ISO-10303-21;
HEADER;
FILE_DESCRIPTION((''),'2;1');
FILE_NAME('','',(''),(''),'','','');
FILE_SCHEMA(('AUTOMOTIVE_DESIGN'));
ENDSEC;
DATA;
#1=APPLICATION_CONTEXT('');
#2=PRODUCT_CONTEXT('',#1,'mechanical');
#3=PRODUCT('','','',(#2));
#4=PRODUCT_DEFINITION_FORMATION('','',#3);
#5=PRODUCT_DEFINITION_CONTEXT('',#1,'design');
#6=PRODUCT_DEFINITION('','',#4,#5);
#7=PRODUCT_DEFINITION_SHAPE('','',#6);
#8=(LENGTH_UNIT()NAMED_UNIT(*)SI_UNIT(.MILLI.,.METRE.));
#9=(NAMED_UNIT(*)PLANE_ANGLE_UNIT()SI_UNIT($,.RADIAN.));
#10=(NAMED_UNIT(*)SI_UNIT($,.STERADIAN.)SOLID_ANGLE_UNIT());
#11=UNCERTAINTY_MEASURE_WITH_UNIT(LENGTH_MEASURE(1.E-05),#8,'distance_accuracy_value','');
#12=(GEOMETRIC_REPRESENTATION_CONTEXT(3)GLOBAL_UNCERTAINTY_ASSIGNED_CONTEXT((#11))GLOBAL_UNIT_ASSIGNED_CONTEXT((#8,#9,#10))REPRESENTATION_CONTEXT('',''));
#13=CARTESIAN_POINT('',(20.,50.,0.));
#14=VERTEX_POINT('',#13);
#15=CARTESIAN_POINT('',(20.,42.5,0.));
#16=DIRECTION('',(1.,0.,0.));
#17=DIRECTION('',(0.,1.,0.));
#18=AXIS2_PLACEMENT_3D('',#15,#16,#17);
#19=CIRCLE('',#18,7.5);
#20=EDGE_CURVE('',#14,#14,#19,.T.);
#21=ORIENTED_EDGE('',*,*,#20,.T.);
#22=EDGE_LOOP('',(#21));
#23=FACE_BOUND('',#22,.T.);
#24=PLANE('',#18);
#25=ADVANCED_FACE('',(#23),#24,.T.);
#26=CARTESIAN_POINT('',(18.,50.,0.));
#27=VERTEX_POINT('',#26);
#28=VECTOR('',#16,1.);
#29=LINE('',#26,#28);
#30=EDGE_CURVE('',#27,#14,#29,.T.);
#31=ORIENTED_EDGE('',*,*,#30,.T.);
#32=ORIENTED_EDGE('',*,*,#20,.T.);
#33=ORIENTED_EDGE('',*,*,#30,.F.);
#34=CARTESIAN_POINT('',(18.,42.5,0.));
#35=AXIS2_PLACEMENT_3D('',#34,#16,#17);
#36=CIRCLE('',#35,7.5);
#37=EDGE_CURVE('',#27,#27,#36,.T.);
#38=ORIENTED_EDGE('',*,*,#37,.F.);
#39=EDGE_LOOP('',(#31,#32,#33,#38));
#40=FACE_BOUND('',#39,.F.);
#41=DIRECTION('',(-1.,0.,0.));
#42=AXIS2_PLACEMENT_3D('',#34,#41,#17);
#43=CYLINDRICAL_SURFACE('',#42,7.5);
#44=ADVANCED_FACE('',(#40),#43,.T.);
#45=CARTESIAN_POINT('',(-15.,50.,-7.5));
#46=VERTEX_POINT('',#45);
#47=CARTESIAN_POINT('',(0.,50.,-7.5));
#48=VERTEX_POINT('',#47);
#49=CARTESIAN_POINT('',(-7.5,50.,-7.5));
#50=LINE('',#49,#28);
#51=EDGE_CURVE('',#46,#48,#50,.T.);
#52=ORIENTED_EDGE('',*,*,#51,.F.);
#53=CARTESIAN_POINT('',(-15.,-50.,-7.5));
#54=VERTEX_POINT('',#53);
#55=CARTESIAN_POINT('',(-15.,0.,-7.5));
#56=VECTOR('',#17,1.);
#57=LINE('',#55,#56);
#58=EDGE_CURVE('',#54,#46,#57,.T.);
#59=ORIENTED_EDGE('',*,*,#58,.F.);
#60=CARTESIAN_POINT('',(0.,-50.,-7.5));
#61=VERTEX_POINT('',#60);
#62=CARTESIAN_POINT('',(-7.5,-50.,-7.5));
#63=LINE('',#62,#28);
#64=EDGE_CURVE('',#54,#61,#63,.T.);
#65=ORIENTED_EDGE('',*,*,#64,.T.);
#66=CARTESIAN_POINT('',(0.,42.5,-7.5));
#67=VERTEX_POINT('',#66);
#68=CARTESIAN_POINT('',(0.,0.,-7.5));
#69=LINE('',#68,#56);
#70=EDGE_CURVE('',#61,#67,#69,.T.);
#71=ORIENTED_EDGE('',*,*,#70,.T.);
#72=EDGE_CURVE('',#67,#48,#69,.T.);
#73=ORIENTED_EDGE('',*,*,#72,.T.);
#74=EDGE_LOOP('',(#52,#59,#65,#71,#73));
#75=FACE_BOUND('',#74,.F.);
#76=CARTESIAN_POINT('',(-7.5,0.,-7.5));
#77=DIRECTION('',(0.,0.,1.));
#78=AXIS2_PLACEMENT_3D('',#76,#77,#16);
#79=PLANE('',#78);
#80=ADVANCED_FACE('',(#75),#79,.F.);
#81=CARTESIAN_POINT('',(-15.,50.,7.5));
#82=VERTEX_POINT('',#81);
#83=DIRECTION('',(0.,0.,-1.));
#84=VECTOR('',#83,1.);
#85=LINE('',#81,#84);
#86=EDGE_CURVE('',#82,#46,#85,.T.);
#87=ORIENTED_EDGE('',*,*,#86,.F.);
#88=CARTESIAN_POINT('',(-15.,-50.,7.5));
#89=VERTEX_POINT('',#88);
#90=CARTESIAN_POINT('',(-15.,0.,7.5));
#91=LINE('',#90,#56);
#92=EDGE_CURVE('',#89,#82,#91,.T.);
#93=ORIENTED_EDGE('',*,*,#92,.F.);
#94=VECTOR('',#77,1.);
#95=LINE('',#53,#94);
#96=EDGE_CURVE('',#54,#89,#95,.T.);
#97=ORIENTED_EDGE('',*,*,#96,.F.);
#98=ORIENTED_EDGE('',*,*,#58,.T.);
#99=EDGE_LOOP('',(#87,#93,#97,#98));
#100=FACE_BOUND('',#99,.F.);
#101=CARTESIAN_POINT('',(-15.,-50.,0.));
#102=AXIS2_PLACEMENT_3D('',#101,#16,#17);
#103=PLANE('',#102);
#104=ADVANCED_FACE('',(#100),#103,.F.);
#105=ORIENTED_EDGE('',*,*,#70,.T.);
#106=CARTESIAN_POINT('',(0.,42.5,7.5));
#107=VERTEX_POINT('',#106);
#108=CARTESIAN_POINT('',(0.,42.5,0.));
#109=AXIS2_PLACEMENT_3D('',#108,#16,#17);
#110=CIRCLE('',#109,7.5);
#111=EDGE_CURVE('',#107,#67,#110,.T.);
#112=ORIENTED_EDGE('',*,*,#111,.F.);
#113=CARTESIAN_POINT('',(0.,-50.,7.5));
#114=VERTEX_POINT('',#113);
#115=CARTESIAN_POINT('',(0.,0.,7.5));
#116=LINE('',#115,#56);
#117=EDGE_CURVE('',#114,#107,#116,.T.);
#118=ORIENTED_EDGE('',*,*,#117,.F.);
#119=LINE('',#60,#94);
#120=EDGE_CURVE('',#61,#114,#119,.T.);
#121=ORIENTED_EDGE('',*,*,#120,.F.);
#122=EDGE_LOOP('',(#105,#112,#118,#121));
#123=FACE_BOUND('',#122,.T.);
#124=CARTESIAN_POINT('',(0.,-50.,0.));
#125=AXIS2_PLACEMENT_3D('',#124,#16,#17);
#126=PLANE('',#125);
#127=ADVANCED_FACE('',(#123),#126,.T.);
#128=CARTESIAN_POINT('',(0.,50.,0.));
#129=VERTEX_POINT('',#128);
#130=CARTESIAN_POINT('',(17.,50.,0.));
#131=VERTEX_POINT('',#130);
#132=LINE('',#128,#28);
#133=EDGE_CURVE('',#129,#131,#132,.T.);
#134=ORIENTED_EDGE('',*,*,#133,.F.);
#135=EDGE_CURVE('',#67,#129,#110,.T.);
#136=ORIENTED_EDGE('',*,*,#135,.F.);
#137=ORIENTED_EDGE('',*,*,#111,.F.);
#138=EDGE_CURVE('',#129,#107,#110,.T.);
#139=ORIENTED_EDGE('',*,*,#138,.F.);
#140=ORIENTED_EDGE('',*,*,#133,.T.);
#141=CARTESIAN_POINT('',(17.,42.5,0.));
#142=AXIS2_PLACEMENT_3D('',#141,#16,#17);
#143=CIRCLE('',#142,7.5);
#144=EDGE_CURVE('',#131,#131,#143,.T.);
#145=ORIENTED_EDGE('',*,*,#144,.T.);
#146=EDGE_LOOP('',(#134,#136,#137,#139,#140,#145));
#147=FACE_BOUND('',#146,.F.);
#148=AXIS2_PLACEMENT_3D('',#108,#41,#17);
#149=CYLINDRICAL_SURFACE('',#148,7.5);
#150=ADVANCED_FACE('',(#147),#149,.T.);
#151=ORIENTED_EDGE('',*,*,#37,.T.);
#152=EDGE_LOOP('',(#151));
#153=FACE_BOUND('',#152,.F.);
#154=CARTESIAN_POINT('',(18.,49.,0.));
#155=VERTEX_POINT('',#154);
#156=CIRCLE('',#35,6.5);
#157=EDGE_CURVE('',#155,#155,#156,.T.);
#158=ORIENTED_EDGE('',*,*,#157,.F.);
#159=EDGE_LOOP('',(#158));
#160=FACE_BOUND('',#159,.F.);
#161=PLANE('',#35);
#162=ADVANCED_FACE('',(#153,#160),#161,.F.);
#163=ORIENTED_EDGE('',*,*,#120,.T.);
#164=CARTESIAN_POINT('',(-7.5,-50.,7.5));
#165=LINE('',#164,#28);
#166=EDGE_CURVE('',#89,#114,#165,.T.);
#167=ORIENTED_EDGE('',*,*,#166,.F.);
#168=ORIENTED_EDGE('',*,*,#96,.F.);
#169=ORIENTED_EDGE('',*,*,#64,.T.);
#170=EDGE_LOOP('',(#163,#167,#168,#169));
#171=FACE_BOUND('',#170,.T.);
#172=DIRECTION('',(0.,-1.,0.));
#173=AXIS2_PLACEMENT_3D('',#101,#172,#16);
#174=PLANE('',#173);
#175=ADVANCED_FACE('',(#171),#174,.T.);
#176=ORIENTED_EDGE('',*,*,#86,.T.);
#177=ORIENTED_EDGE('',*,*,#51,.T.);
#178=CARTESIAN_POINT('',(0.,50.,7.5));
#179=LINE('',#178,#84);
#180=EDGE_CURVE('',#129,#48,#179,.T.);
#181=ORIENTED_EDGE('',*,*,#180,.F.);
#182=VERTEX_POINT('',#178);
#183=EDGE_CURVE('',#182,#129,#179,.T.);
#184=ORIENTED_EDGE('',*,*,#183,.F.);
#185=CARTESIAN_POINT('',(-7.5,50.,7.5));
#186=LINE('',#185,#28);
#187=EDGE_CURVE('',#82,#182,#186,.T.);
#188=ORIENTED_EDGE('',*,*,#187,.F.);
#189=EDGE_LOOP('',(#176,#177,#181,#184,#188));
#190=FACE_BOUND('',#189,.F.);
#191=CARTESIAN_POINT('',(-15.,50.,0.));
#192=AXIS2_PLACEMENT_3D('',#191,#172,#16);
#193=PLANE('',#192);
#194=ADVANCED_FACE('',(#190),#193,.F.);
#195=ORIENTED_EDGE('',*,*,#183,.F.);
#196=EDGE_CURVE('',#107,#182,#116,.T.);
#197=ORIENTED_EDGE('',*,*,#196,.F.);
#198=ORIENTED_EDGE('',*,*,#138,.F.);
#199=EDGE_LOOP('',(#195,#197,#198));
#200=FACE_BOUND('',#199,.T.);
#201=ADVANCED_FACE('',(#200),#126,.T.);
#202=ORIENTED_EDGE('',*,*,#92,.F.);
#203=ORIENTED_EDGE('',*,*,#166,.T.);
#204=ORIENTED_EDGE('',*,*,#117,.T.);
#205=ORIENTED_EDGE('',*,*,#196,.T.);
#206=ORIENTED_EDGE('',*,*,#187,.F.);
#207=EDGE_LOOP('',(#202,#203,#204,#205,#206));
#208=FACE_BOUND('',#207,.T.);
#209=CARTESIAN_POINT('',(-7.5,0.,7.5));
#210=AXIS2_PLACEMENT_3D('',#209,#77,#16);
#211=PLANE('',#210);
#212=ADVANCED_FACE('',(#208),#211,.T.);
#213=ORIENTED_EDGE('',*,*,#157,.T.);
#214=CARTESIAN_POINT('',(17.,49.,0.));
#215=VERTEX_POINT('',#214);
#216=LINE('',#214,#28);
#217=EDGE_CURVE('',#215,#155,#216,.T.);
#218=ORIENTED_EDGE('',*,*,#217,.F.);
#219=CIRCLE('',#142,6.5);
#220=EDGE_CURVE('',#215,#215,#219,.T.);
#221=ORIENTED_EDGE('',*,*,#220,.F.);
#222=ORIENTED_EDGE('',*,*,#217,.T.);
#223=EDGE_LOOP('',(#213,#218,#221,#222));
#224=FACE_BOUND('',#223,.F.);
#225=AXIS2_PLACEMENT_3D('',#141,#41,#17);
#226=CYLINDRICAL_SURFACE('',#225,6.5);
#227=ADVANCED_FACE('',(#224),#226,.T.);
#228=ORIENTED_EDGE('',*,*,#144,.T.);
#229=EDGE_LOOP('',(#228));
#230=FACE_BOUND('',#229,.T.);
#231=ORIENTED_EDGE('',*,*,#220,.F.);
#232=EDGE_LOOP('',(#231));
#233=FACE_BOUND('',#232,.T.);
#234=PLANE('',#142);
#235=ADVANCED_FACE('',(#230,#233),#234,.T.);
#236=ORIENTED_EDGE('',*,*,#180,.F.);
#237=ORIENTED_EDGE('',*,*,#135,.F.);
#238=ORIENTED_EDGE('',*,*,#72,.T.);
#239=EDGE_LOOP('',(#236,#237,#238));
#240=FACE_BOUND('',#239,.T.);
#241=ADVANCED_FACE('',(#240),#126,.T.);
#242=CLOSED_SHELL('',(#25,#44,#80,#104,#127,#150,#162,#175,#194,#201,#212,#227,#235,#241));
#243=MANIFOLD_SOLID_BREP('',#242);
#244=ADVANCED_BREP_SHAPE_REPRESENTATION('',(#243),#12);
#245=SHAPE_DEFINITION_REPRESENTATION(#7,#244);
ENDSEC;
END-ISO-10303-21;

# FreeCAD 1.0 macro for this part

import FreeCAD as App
import Part
import Sketcher

doc = App.newDocument("Part")
body = doc.addObject("PartDesign::Body", "Body")

sketch1 = doc.addObject("Sketcher::SketchObject", "Sketch")
body.addObject(sketch1)
sketch1.AttachmentSupport = (doc.XY_Plane, [""])
sketch1.MapMode = "FlatFace"
sketch1.addGeometry(Part.LineSegment(App.Vector(-15, 50, 0), App.Vector(-15, -50, 0)), False)
sketch1.addGeometry(Part.LineSegment(App.Vector(-15, -50, 0), App.Vector(0, -50, 0)), False)
sketch1.addGeometry(Part.LineSegment(App.Vector(0, -50, 0), App.Vector(0, 50, 0)), False)
sketch1.addGeometry(Part.LineSegment(App.Vector(0, 50, 0), App.Vector(-15, 50, 0)), False)
sketch1.addConstraint(Sketcher.Constraint("Coincident", 0, 2, 1, 1))
sketch1.addConstraint(Sketcher.Constraint("Coincident", 1, 2, 2, 1))
sketch1.addConstraint(Sketcher.Constraint("Coincident", 2, 2, 3, 1))
sketch1.addConstraint(Sketcher.Constraint("Coincident", 3, 2, 0, 1))
sketch1.addConstraint(Sketcher.Constraint("Vertical", 0))
sketch1.addConstraint(Sketcher.Constraint("Horizontal", 1))
sketch1.addConstraint(Sketcher.Constraint("Vertical", 2))
sketch1.addConstraint(Sketcher.Constraint("Horizontal", 3))
sketch1.addConstraint(Sketcher.Constraint("Symmetric", 1, 2, 2, 2, -1, 1))
sketch1.addConstraint(Sketcher.Constraint("DistanceX", 1, 1, 1, 2, 15.0))
sketch1.addConstraint(Sketcher.Constraint("DistanceY", 0, 2, 0, 1, 100.0))
pad1 = doc.addObject("PartDesign::Pad", "Pad")
body.addObject(pad1)
pad1.Profile = sketch1
pad1.Length = 15
pad1.Midplane = True

sketch2 = doc.addObject("Sketcher::SketchObject", "Sketch001")
body.addObject(sketch2)
sketch2.AttachmentSupport = (doc.YZ_Plane, [""])
sketch2.MapMode = "FlatFace"
sketch2.addGeometry(Part.Circle(App.Vector(42.5, 0, 0), App.Vector(0, 0, 1), 7.5), False)
sketch2.addConstraint(Sketcher.Constraint("PointOnObject", 0, 3, -1))
sketch2.addConstraint(Sketcher.Constraint("Diameter", 0, 15.0))
sketch2.addConstraint(Sketcher.Constraint("DistanceX", -1, 1, 0, 3, 42.5))
pad2 = doc.addObject("PartDesign::Pad", "Pad001")
body.addObject(pad2)
pad2.Profile = sketch2
pad2.Length = 17

sketch3 = doc.addObject("Sketcher::SketchObject", "Sketch002")
body.addObject(sketch3)
sketch3.AttachmentSupport = (doc.YZ_Plane, [""])
sketch3.MapMode = "FlatFace"
sketch3.AttachmentOffset = App.Placement(App.Vector(0, 0, 17), App.Rotation())
sketch3.addGeometry(Part.Circle(App.Vector(42.5, 0, 0), App.Vector(0, 0, 1), 6.5), False)
sketch3.addConstraint(Sketcher.Constraint("PointOnObject", 0, 3, -1))
sketch3.addConstraint(Sketcher.Constraint("Diameter", 0, 13.0))
sketch3.addConstraint(Sketcher.Constraint("DistanceX", -1, 1, 0, 3, 42.5))
pad3 = doc.addObject("PartDesign::Pad", "Pad002")
body.addObject(pad3)
pad3.Profile = sketch3
pad3.Length = 1

sketch4 = doc.addObject("Sketcher::SketchObject", "Sketch003")
body.addObject(sketch4)
sketch4.AttachmentSupport = (doc.YZ_Plane, [""])
sketch4.MapMode = "FlatFace"
sketch4.AttachmentOffset = App.Placement(App.Vector(0, 0, 18), App.Rotation())
sketch4.addGeometry(Part.Circle(App.Vector(42.5, 0, 0), App.Vector(0, 0, 1), 7.5), False)
sketch4.addConstraint(Sketcher.Constraint("PointOnObject", 0, 3, -1))
sketch4.addConstraint(Sketcher.Constraint("Diameter", 0, 15.0))
sketch4.addConstraint(Sketcher.Constraint("DistanceX", -1, 1, 0, 3, 42.5))
pad4 = doc.addObject("PartDesign::Pad", "Pad003")
body.addObject(pad4)
pad4.Profile = sketch4
pad4.Length = 2

doc.recompute()
